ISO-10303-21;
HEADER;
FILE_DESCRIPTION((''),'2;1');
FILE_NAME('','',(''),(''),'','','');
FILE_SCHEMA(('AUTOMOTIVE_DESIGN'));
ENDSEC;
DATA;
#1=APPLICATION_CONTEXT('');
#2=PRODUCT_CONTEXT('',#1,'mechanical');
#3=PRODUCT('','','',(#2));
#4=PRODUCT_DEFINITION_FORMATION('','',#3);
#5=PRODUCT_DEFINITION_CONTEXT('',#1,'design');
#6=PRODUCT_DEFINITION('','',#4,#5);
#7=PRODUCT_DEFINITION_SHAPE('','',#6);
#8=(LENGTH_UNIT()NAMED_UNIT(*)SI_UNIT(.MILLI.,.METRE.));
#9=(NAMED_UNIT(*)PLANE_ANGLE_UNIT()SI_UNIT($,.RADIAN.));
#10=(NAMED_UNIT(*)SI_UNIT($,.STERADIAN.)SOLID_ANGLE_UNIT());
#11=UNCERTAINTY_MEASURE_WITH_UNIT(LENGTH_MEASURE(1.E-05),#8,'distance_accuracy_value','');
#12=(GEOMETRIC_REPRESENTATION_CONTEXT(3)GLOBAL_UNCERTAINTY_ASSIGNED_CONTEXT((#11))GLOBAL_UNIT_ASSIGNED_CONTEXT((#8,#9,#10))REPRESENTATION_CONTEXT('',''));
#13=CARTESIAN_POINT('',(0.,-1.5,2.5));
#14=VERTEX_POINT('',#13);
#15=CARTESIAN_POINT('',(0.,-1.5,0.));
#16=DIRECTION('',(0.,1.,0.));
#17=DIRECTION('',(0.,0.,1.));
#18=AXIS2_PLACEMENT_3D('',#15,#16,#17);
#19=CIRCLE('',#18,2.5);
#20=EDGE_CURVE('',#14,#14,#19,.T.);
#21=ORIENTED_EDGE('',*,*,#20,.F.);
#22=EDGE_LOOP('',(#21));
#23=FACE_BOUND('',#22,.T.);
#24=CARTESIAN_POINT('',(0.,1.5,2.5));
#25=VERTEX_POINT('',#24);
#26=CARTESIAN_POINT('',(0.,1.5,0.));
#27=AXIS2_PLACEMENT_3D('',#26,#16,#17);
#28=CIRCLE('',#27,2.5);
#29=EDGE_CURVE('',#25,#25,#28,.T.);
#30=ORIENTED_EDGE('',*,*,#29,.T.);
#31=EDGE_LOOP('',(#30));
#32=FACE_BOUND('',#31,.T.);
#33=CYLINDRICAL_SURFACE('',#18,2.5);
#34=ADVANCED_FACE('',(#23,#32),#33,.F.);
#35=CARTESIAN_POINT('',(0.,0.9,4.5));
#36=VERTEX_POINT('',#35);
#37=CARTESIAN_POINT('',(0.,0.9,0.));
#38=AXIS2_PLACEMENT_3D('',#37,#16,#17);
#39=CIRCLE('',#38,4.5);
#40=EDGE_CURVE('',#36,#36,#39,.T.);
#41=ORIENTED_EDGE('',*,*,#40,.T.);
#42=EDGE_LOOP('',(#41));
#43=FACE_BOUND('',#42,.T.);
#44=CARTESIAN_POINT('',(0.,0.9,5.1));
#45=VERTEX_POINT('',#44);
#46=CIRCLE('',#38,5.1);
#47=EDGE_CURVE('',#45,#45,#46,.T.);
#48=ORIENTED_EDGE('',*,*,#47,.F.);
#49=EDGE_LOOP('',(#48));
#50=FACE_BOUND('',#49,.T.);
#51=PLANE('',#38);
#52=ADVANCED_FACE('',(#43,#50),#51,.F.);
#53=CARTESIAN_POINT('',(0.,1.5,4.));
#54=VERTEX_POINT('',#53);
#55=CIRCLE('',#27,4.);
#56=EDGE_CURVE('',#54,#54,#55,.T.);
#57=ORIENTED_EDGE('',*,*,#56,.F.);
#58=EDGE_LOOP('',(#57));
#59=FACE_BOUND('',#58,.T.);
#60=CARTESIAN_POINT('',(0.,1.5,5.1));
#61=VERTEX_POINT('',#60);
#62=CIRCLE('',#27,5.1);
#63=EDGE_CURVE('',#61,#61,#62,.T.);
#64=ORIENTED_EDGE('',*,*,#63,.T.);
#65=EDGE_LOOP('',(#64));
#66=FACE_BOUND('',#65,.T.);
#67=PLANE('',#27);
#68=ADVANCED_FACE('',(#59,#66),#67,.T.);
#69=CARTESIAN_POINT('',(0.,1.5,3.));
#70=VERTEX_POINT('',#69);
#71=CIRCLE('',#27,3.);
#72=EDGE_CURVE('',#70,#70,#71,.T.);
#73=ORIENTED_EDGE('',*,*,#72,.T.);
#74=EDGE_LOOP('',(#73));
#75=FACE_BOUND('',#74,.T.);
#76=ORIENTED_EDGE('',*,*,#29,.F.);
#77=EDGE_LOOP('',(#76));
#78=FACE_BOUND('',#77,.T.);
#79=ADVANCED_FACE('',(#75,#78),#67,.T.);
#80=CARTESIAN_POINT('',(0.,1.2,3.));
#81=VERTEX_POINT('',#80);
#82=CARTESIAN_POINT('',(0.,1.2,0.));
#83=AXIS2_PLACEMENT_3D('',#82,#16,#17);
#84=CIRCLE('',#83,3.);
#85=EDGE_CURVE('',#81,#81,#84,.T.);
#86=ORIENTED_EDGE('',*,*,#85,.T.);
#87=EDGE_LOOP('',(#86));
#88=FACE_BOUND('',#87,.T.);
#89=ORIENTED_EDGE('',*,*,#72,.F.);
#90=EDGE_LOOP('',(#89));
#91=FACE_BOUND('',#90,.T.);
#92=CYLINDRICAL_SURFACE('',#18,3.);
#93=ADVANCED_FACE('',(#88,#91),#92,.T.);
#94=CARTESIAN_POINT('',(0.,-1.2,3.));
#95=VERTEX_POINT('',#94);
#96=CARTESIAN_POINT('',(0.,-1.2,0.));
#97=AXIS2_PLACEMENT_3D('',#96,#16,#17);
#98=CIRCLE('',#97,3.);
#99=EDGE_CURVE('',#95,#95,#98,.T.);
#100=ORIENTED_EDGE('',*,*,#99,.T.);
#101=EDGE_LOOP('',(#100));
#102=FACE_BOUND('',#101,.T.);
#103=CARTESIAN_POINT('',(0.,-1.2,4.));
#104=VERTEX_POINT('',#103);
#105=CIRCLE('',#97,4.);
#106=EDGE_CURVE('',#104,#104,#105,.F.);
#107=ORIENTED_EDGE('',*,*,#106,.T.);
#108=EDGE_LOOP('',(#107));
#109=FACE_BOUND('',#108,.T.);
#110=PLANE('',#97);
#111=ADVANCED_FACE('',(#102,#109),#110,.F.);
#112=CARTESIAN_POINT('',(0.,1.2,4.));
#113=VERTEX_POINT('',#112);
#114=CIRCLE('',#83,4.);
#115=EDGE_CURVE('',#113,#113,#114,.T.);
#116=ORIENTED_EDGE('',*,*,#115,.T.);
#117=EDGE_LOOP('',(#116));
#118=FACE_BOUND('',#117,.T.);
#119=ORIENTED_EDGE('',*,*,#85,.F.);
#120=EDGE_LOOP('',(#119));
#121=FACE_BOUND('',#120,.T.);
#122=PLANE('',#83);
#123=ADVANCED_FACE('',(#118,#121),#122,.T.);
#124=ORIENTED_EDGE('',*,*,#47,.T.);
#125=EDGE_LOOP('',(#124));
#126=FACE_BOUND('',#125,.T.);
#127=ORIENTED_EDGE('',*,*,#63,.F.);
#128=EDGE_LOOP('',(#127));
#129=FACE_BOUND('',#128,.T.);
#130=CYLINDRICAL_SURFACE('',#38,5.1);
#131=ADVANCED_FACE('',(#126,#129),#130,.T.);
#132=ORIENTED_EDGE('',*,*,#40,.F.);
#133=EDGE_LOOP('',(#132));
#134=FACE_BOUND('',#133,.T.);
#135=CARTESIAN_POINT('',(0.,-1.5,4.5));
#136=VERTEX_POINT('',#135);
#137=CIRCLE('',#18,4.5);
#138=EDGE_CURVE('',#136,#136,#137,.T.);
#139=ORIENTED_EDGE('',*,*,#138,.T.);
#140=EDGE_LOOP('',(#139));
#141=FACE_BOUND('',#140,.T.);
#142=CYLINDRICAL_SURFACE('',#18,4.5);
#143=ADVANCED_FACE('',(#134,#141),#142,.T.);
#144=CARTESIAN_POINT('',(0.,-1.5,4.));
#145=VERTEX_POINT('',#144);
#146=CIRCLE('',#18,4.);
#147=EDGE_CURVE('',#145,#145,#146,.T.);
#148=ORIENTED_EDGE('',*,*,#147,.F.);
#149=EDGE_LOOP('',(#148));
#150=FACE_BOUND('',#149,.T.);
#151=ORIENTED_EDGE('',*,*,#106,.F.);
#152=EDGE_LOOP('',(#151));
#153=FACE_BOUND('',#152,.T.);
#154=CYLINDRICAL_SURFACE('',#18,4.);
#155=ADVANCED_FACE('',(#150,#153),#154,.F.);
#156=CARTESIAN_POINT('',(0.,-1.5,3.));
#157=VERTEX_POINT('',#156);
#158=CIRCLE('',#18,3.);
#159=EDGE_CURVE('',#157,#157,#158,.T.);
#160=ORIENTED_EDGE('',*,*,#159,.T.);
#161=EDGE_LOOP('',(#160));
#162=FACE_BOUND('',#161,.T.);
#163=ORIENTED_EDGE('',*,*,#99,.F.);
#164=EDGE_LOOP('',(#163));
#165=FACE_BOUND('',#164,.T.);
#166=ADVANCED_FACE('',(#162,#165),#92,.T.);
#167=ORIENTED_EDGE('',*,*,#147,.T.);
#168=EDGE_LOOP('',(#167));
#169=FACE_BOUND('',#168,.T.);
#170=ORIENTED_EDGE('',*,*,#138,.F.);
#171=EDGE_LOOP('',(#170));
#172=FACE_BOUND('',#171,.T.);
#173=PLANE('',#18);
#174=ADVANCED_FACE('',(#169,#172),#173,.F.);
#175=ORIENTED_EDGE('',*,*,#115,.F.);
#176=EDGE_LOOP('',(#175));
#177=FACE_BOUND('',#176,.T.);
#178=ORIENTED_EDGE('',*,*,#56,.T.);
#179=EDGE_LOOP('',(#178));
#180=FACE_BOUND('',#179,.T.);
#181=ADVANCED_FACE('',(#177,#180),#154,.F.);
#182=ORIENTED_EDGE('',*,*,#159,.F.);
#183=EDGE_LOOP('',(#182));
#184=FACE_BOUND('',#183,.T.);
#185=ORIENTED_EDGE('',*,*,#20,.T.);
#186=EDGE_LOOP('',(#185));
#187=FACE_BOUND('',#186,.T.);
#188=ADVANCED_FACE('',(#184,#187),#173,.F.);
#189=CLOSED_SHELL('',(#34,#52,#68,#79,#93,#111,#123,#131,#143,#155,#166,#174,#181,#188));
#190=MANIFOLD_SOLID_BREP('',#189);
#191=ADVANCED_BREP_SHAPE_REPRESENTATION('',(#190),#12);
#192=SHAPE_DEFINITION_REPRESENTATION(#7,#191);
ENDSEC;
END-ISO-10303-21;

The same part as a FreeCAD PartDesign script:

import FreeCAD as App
import Part
import Sketcher
Q = App.Units.Quantity

doc = App.newDocument("Part")
params = doc.addObject("Spreadsheet::Sheet", "Params")
for row, (alias, value) in enumerate([
    ("sketch1_diameter", "9 mm"),
    ("sketch1_diameter2", "8 mm"),
    ("pad1_length", "1.5 mm"),
    ("pad1_length2", "1.5 mm"),
    ("sketch2_diameter", "6 mm"),
    ("sketch2_diameter2", "5 mm"),
    ("pad2_length", "1.5 mm"),
    ("pad2_length2", "1.5 mm"),
    ("sketch3_diameter", "8 mm"),
    ("sketch3_diameter2", "6 mm"),
    ("pad3_length", "1.2 mm"),
    ("pad3_length2", "1.2 mm"),
    ("sketch4_diameter", "9 mm"),
    ("sketch4_diameter2", "10.2 mm"),
    ("pad4_length", "0.6 mm"),
], start=1):
    params.set(f"A{row}", alias)
    params.set(f"B{row}", "=" + value)
    params.setAlias(f"B{row}", alias)

body = doc.addObject("PartDesign::Body", "Body")

# Sketch on XZ plane
sketch1 = body.newObject("Sketcher::SketchObject", "Sketch")
sketch1.AttachmentSupport = (doc.getObject("XZ_Plane"), [""])
sketch1.MapMode = "FlatFace"
sketch1.addGeometry([
    Part.Circle(App.Vector(0, 0, 0), App.Vector(0, 0, 1), 4.5),
    Part.Circle(App.Vector(0, 0, 0), App.Vector(0, 0, 1), 4),
], False)
sketch1.addConstraint([
    Sketcher.Constraint("Coincident", 0, 3, -1, 1),
    Sketcher.Constraint("Coincident", 1, 3, -1, 1),
    Sketcher.Constraint("Diameter", 0, Q("9 mm")),
    Sketcher.Constraint("Diameter", 1, Q("8 mm")),
])
sketch1.setExpression("Constraints[2]", "Params.sketch1_diameter")
sketch1.setExpression("Constraints[3]", "Params.sketch1_diameter2")
pad1 = body.newObject("PartDesign::Pad", "Pad")
pad1.Profile = sketch1
pad1.Type = "TwoLengths"
pad1.setExpression("Length", "Params.pad1_length")
pad1.setExpression("Length2", "Params.pad1_length2")
pad1.Reversed = True
body2 = doc.addObject("PartDesign::Body", "Body001")

# Sketch on XZ plane
sketch2 = body2.newObject("Sketcher::SketchObject", "Sketch001")
sketch2.AttachmentSupport = (doc.getObject("XZ_Plane001"), [""])
sketch2.MapMode = "FlatFace"
sketch2.addGeometry([
    Part.Circle(App.Vector(0, 0, 0), App.Vector(0, 0, 1), 3),
    Part.Circle(App.Vector(0, 0, 0), App.Vector(0, 0, 1), 2.5),
], False)
sketch2.addConstraint([
    Sketcher.Constraint("Coincident", 0, 3, -1, 1),
    Sketcher.Constraint("Coincident", 1, 3, -1, 1),
    Sketcher.Constraint("Diameter", 0, Q("6 mm")),
    Sketcher.Constraint("Diameter", 1, Q("5 mm")),
])
sketch2.setExpression("Constraints[2]", "Params.sketch2_diameter")
sketch2.setExpression("Constraints[3]", "Params.sketch2_diameter2")
pad2 = body2.newObject("PartDesign::Pad", "Pad001")
pad2.Profile = sketch2
pad2.Type = "TwoLengths"
pad2.setExpression("Length", "Params.pad2_length")
pad2.setExpression("Length2", "Params.pad2_length2")
pad2.Reversed = True
body.AllowCompound = True
doc.recompute()

boolean = body.newObject("PartDesign::Boolean", "Boolean")
boolean.Type = "Fuse"
boolean.addObjects([body2])

# Sketch on XZ plane
sketch3 = body.newObject("Sketcher::SketchObject", "Sketch002")
sketch3.AttachmentSupport = (doc.getObject("XZ_Plane"), [""])
sketch3.MapMode = "FlatFace"
sketch3.addGeometry([
    Part.Circle(App.Vector(0, 0, 0), App.Vector(0, 0, 1), 4),
    Part.Circle(App.Vector(0, 0, 0), App.Vector(0, 0, 1), 3),
], False)
sketch3.addConstraint([
    Sketcher.Constraint("Coincident", 0, 3, -1, 1),
    Sketcher.Constraint("Coincident", 1, 3, -1, 1),
    Sketcher.Constraint("Diameter", 0, Q("8 mm")),
    Sketcher.Constraint("Diameter", 1, Q("6 mm")),
])
sketch3.setExpression("Constraints[2]", "Params.sketch3_diameter")
sketch3.setExpression("Constraints[3]", "Params.sketch3_diameter2")
pad3 = body.newObject("PartDesign::Pad", "Pad002")
pad3.Profile = sketch3
pad3.Type = "TwoLengths"
pad3.setExpression("Length", "Params.pad3_length")
pad3.setExpression("Length2", "Params.pad3_length2")
pad3.Reversed = True

# Sketch on XZ plane
sketch4 = body.newObject("Sketcher::SketchObject", "Sketch003")
sketch4.AttachmentSupport = (doc.getObject("XZ_Plane"), [""])
sketch4.MapMode = "FlatFace"
sketch4.AttachmentOffset = App.Placement(App.Vector(0, 0, -1.5), App.Rotation())
sketch4.addGeometry([
    Part.Circle(App.Vector(0, 0, 0), App.Vector(0, 0, 1), 5.1),
    Part.Circle(App.Vector(0, 0, 0), App.Vector(0, 0, 1), 4.5),
], False)
sketch4.addConstraint([
    Sketcher.Constraint("Coincident", 0, 3, -1, 1),
    Sketcher.Constraint("Coincident", 1, 3, -1, 1),
    Sketcher.Constraint("Diameter", 1, Q("9 mm")),
    Sketcher.Constraint("Diameter", 0, Q("10.2 mm")),
])
sketch4.setExpression("Constraints[2]", "Params.sketch4_diameter")
sketch4.setExpression("Constraints[3]", "Params.sketch4_diameter2")
pad4 = body.newObject("PartDesign::Pad", "Pad003")
pad4.Profile = sketch4
pad4.setExpression("Length", "Params.pad4_length")

doc.recompute()
